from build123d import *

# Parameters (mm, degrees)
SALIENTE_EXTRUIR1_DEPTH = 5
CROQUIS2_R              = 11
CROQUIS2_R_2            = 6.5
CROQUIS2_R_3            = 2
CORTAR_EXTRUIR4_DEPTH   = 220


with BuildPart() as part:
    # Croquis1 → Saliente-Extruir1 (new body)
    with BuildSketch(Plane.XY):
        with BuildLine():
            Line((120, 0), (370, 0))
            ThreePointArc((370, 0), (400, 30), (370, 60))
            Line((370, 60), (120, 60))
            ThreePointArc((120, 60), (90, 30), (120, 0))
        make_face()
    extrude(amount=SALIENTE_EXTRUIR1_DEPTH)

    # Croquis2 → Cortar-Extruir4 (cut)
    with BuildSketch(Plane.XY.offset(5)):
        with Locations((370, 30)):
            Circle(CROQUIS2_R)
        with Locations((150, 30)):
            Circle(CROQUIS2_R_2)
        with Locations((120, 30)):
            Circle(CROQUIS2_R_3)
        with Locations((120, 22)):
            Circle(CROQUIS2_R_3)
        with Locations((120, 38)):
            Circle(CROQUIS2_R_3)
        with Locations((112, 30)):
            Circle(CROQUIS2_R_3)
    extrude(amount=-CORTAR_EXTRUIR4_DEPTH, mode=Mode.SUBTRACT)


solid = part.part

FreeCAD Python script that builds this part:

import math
import FreeCAD as App
import Part
import Sketcher

V = App.Vector
Q = App.Units.Quantity

doc = App.newDocument("Part")
params = doc.addObject("Spreadsheet::Sheet", "Params")
for row, (alias, value) in enumerate([
    ("sketch1_radius", "30 mm"),
    ("sketch1_width", "250 mm"),
    ("pad1_length", "5 mm"),
    ("sketch2_diameter", "22 mm"),
    ("sketch2_diameter2", "13 mm"),
    ("sketch2_diameter3", "4 mm"),
    ("pocket1_length", "220 mm"),
], start=1):
    params.set(f"A{row}", alias)
    params.set(f"B{row}", "=" + value)
    params.setAlias(f"B{row}", alias)

body = doc.addObject("PartDesign::Body", "Body")

sketch1 = body.newObject("Sketcher::SketchObject", "Sketch")
sketch1.AttachmentSupport = (doc.getObject("XY_Plane"), [""])
sketch1.MapMode = "FlatFace"
sketch1.addGeometry([
    Part.LineSegment(V(120, 0, 0), V(370, 0, 0)),
    Part.ArcOfCircle(Part.Circle(V(370, 30, 0), V(0, 0, 1), 30), math.radians(-90), math.radians(90)),
    Part.LineSegment(V(370, 60, 0), V(120, 60, 0)),
    Part.ArcOfCircle(Part.Circle(V(120, 30, 0), V(0, 0, 1), 30), math.radians(90), math.radians(270)),
], False)
sketch1.addConstraint([
    Sketcher.Constraint("Tangent", 0, 2, 1, 1),
    Sketcher.Constraint("Tangent", 1, 2, 2, 1),
    Sketcher.Constraint("Tangent", 2, 2, 3, 1),
    Sketcher.Constraint("Tangent", 3, 2, 0, 1),
    Sketcher.Constraint("Horizontal", 0),
    Sketcher.Constraint("Horizontal", 2),
    Sketcher.Constraint("PointOnObject", 0, 2, -1),
    Sketcher.Constraint("Radius", 1, Q("30 mm")),
    Sketcher.Constraint("DistanceX", 0, 1, 0, 2, Q("250 mm")),
    Sketcher.Constraint("DistanceX", -1, 1, 1, 3, Q("370 mm")),
])
sketch1.setExpression("Constraints[7]", "Params.sketch1_radius")
sketch1.setExpression("Constraints[8]", "Params.sketch1_width")
pad1 = body.newObject("PartDesign::Pad", "Pad")
pad1.Profile = sketch1
pad1.setExpression("Length", "Params.pad1_length")

sketch2 = body.newObject("Sketcher::SketchObject", "Sketch001")
sketch2.AttachmentSupport = (doc.getObject("XY_Plane"), [""])
sketch2.MapMode = "FlatFace"
sketch2.AttachmentOffset = App.Placement(V(0, 0, 5), App.Rotation())
sketch2.addGeometry([
    Part.Circle(V(370, 30, 0), V(0, 0, 1), 11),
    Part.Circle(V(150, 30, 0), V(0, 0, 1), 6.5),
    Part.Circle(V(120, 30, 0), V(0, 0, 1), 2),
    Part.Circle(V(120, 22, 0), V(0, 0, 1), 2),
    Part.Circle(V(120, 38, 0), V(0, 0, 1), 2),
    Part.Circle(V(112, 30, 0), V(0, 0, 1), 2),
], False)
sketch2.addConstraint([
    Sketcher.Constraint("Equal", 2, 3),
    Sketcher.Constraint("Equal", 3, 4),
    Sketcher.Constraint("Equal", 4, 5),
    Sketcher.Constraint("Horizontal", 0, 3, 1, 3),
    Sketcher.Constraint("Horizontal", 1, 3, 2, 3),
    Sketcher.Constraint("Horizontal", 2, 3, 5, 3),
    Sketcher.Constraint("Vertical", 2, 3, 3, 3),
    Sketcher.Constraint("Vertical", 3, 3, 4, 3),
    Sketcher.Constraint("Diameter", 0, Q("22 mm")),
    Sketcher.Constraint("Diameter", 1, Q("13 mm")),
    Sketcher.Constraint("Diameter", 2, Q("4 mm")),
    Sketcher.Constraint("DistanceX", -1, 1, 0, 3, Q("370 mm")),
    Sketcher.Constraint("DistanceY", -1, 1, 0, 3, Q("30 mm")),
    Sketcher.Constraint("DistanceX", -1, 1, 1, 3, Q("150 mm")),
    Sketcher.Constraint("DistanceX", -1, 1, 2, 3, Q("120 mm")),
    Sketcher.Constraint("DistanceY", -1, 1, 3, 3, Q("22 mm")),
    Sketcher.Constraint("DistanceY", -1, 1, 4, 3, Q("38 mm")),
    Sketcher.Constraint("DistanceX", -1, 1, 5, 3, Q("112 mm")),
])
sketch2.setExpression("Constraints[8]", "Params.sketch2_diameter")
sketch2.setExpression("Constraints[9]", "Params.sketch2_diameter2")
sketch2.setExpression("Constraints[10]", "Params.sketch2_diameter3")
pocket1 = body.newObject("PartDesign::Pocket", "Pocket")
pocket1.Profile = sketch2
pocket1.setExpression("Length", "Params.pocket1_length")

doc.recompute()
